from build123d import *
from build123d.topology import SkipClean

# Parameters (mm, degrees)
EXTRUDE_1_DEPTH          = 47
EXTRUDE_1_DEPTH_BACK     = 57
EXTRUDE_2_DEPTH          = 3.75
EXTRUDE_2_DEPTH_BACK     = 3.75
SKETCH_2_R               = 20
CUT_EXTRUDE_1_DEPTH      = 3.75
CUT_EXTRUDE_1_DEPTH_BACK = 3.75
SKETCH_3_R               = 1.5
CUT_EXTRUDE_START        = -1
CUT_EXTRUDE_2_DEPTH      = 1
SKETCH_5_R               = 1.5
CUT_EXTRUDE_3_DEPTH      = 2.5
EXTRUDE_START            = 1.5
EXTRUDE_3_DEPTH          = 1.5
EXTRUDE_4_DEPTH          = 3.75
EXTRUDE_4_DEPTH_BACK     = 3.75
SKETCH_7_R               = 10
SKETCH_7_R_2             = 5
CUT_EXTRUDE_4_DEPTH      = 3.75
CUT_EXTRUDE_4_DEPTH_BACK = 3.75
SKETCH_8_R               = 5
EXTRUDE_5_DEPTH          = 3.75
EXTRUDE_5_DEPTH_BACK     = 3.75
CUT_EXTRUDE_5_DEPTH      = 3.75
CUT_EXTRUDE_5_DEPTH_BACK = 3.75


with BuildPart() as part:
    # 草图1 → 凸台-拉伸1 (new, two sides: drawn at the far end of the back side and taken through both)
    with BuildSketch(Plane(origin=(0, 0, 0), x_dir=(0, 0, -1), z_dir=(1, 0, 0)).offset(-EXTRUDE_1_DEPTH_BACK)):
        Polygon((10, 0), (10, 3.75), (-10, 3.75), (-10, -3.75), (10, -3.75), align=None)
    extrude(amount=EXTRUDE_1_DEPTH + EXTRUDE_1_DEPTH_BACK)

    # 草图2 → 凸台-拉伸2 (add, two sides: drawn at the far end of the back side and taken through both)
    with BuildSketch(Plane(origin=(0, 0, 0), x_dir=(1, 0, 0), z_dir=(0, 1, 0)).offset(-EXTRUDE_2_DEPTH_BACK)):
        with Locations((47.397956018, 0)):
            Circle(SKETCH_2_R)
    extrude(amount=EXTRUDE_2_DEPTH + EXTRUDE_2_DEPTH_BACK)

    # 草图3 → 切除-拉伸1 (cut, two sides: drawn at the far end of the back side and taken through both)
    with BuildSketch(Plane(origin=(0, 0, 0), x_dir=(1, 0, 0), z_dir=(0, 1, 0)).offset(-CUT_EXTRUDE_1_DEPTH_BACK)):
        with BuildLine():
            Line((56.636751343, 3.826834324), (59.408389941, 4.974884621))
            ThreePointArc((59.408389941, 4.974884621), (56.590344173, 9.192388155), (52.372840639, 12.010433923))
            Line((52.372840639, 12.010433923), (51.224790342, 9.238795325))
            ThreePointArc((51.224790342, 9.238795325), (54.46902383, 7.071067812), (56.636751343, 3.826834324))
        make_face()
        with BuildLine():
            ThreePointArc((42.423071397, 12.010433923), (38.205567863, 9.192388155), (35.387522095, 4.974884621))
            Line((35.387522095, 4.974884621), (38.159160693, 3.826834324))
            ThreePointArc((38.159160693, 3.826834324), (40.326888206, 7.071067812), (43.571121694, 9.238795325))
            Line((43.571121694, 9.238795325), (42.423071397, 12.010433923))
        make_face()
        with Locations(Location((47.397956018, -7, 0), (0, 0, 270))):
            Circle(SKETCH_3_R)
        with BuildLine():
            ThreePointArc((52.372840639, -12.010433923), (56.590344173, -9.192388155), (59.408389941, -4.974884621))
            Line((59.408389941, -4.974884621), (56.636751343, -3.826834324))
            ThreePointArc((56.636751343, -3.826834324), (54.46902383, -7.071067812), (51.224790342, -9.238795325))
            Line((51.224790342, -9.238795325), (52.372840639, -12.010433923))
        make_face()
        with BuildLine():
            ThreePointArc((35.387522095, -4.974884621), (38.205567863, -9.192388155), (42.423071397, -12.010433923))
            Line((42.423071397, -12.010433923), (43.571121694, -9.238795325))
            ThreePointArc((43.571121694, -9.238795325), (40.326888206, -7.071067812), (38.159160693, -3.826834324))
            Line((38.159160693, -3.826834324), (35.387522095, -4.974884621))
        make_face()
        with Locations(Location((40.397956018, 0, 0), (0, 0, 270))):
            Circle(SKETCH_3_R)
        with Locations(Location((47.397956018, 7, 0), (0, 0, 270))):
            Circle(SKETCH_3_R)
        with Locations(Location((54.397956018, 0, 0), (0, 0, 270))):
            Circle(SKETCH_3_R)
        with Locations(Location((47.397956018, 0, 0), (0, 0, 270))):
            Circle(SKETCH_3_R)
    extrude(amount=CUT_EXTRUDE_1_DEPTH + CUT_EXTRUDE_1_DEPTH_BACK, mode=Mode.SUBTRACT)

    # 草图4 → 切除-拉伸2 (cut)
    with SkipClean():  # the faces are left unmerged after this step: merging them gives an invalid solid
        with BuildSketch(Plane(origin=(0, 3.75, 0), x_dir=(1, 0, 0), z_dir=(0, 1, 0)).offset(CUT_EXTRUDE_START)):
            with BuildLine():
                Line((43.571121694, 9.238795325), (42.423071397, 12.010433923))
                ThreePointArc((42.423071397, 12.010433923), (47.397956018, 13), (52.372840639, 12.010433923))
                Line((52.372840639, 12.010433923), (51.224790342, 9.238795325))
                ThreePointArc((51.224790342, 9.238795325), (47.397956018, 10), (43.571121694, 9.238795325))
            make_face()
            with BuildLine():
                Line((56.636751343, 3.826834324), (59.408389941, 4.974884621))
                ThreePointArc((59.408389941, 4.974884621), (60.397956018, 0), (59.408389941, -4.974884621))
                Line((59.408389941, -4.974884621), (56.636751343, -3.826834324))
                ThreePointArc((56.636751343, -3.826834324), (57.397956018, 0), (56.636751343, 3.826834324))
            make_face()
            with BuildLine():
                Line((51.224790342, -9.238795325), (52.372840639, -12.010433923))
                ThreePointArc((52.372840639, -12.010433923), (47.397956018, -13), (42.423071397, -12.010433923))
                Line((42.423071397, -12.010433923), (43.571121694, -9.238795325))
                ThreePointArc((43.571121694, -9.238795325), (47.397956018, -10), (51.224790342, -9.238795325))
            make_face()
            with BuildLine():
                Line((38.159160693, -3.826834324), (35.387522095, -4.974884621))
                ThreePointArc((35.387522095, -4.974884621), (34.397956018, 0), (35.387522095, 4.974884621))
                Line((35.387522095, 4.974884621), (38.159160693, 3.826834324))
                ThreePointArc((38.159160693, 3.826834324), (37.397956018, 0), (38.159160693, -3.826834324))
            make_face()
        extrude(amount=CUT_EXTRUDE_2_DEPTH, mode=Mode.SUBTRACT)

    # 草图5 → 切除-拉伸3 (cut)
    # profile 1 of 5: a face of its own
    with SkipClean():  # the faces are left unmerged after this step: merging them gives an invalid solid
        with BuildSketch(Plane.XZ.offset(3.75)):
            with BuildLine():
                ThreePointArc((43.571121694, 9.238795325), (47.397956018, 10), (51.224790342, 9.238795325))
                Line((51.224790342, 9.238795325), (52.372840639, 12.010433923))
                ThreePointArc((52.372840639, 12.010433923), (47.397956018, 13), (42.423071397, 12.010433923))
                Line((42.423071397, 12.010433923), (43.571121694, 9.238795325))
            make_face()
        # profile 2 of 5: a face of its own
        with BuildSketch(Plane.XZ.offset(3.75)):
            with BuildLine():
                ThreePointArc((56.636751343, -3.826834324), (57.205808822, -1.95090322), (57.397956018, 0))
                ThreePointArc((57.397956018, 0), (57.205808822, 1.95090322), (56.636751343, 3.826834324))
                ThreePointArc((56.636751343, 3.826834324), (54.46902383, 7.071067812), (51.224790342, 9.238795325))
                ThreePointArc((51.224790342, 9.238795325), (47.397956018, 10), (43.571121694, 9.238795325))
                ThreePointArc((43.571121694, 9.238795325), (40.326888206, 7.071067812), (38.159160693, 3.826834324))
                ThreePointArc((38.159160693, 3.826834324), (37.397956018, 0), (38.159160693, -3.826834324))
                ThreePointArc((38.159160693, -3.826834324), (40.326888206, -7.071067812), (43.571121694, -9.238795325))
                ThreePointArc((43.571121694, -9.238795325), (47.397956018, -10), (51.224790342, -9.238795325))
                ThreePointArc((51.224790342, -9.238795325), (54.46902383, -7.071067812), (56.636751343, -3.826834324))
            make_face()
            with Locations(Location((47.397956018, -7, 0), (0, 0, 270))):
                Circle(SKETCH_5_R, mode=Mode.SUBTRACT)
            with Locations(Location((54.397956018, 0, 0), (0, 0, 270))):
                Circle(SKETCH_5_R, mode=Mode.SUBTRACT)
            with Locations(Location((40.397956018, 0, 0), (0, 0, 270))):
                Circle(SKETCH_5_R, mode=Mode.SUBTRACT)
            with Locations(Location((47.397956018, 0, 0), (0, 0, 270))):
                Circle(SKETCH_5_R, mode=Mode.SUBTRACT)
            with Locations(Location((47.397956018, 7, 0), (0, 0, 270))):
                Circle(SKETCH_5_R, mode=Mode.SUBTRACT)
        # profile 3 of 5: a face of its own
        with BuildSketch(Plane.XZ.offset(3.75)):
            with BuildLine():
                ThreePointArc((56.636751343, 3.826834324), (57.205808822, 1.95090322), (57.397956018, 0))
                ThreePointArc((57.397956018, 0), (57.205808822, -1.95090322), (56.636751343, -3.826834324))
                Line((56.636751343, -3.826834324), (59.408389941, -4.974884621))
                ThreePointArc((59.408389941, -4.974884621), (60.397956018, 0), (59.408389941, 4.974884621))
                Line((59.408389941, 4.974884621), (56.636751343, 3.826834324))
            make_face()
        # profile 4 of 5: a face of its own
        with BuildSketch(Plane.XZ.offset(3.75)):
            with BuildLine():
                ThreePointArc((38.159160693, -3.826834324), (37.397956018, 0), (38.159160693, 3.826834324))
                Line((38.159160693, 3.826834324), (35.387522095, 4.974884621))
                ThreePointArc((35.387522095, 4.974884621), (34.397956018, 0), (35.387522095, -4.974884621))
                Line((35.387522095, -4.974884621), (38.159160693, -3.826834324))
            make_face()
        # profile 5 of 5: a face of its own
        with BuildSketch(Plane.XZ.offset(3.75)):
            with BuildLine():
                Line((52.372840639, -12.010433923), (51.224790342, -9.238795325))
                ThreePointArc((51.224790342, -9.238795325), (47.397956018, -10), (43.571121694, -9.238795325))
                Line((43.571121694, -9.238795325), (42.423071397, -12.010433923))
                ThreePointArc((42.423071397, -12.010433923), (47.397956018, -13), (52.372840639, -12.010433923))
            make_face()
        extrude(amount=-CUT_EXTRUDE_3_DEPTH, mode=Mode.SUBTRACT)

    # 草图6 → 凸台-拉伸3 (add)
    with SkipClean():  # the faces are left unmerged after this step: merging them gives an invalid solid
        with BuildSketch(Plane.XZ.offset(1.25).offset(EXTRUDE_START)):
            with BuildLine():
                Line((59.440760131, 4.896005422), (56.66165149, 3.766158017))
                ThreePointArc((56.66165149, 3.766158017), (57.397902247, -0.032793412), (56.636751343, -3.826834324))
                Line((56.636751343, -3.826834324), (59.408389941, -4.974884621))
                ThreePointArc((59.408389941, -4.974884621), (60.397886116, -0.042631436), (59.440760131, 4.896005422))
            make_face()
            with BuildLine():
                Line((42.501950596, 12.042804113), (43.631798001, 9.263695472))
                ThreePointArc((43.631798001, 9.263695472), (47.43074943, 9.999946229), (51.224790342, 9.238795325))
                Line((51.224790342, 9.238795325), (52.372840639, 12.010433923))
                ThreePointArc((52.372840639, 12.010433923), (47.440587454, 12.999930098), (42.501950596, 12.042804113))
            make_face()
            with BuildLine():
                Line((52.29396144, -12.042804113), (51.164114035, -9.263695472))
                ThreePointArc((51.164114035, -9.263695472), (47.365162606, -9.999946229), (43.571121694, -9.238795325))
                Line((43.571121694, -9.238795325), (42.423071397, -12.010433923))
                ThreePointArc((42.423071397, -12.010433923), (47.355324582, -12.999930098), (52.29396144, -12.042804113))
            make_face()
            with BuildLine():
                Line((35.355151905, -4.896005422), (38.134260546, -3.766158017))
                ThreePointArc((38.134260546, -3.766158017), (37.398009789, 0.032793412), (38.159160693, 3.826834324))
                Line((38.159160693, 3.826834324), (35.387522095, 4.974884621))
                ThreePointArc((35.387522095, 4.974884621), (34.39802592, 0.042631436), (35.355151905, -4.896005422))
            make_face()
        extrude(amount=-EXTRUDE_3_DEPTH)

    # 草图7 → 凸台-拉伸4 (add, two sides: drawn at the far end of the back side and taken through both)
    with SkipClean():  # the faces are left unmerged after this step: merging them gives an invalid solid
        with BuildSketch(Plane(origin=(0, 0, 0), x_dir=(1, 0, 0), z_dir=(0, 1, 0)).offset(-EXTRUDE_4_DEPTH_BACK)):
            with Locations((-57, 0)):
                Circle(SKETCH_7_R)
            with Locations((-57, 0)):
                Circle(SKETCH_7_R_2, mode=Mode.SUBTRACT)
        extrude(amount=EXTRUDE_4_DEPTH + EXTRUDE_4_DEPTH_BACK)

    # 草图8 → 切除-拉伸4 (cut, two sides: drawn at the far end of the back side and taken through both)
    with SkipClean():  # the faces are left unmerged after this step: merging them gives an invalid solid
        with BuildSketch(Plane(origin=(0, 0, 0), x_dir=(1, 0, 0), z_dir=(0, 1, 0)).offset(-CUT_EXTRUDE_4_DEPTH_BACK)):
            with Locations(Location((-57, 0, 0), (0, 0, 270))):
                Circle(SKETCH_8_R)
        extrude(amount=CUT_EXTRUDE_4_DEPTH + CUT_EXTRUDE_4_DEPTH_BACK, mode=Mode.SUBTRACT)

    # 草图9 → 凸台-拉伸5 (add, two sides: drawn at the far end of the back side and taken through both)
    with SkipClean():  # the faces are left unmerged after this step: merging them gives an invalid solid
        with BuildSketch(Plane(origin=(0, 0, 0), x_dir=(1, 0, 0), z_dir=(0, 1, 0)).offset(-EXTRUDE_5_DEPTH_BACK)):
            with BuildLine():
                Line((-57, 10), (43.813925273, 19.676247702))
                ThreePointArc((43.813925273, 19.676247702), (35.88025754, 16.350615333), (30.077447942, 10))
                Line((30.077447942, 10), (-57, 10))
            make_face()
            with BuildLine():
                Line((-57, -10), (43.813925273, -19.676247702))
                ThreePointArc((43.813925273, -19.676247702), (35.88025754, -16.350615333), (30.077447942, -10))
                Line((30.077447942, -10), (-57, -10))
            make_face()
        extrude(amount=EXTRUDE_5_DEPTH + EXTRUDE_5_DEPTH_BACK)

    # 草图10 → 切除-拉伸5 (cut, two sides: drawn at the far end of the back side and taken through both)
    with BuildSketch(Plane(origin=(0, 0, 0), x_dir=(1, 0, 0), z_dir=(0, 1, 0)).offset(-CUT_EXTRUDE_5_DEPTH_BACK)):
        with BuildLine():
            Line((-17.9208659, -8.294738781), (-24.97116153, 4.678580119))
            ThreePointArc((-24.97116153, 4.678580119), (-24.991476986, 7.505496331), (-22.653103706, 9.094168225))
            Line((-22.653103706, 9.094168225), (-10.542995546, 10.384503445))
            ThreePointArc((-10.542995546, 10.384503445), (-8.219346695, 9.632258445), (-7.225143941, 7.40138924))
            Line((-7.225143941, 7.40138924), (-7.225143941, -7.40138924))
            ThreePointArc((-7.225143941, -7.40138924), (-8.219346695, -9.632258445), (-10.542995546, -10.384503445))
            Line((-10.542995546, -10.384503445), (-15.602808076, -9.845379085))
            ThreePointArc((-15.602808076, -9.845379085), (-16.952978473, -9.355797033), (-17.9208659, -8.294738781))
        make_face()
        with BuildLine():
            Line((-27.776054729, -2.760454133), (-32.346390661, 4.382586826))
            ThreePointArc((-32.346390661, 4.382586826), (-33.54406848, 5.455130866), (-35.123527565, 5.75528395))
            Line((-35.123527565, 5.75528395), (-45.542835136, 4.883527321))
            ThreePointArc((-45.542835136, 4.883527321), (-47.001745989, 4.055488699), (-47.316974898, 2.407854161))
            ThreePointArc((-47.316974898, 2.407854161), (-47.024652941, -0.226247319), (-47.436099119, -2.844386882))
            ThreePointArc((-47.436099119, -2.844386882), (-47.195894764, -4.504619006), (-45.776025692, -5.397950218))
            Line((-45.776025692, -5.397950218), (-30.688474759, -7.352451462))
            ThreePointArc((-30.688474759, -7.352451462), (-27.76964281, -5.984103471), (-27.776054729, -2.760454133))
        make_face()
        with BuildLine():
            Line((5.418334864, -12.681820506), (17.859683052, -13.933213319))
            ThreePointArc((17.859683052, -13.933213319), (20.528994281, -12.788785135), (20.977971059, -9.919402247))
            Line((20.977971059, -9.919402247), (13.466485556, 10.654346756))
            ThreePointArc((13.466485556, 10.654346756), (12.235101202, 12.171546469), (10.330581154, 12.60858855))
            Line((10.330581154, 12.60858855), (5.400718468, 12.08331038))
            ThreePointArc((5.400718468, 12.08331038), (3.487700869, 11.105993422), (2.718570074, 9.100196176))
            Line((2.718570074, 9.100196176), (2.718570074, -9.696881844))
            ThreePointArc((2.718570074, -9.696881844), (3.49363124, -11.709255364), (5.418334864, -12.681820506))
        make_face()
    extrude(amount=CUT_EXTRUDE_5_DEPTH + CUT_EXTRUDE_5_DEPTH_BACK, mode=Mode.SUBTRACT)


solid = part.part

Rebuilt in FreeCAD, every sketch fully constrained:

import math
import FreeCAD as App
import Part
import Sketcher
Q = App.Units.Quantity

doc = App.newDocument("Part")
body = doc.addObject("PartDesign::Body", "Body")

# Sketch on YZ plane
sketch1 = body.newObject("Sketcher::SketchObject", "Sketch")
sketch1.AttachmentSupport = (doc.getObject("YZ_Plane"), [""])
sketch1.MapMode = "FlatFace"
sketch1.addGeometry([
    Part.LineSegment(App.Vector(4, -10, 0), App.Vector(4, 10, 0)),
    Part.LineSegment(App.Vector(4, 10, 0), App.Vector(-4, 10, 0)),
    Part.LineSegment(App.Vector(-4, 10, 0), App.Vector(-4, -10, 0)),
    Part.LineSegment(App.Vector(-4, -10, 0), App.Vector(4, -10, 0)),
], False)
sketch1.addConstraint([
    Sketcher.Constraint("Coincident", 0, 2, 1, 1),
    Sketcher.Constraint("Coincident", 1, 2, 2, 1),
    Sketcher.Constraint("Coincident", 2, 2, 3, 1),
    Sketcher.Constraint("Coincident", 3, 2, 0, 1),
    Sketcher.Constraint("Vertical", 0),
    Sketcher.Constraint("Horizontal", 1),
    Sketcher.Constraint("Vertical", 2),
    Sketcher.Constraint("Horizontal", 3),
    Sketcher.Constraint("Symmetric", 0, 2, 2, 2, -1, 1),
    Sketcher.Constraint("DistanceY", 0, 1, 0, 2, Q("20 mm")),
    Sketcher.Constraint("DistanceX", 1, 2, 1, 1, Q("7.5 mm")),
])
pad1 = body.newObject("PartDesign::Pad", "Pad")
pad1.Profile = sketch1
pad1.Type = "TwoLengths"
pad1.Length = 47
pad1.Length2 = 57

# Sketch on XZ plane
sketch2 = body.newObject("Sketcher::SketchObject", "Sketch001")
sketch2.AttachmentSupport = (doc.getObject("XZ_Plane"), [""])
sketch2.MapMode = "FlatFace"
sketch2.addGeometry(Part.Circle(App.Vector(47, 0, 0), App.Vector(0, 0, 1), 20), False)
sketch2.addConstraint([
    Sketcher.Constraint("PointOnObject", 0, 3, -1),
    Sketcher.Constraint("Diameter", 0, Q("40 mm")),
    Sketcher.Constraint("DistanceX", -1, 1, 0, 3, Q("47.397956 mm")),
])
pad2 = body.newObject("PartDesign::Pad", "Pad001")
pad2.Profile = sketch2
pad2.Type = "TwoLengths"
pad2.Length = 3.75
pad2.Length2 = 3.75
pad2.Reversed = True

# Sketch on XZ plane
sketch3 = body.newObject("Sketcher::SketchObject", "Sketch002")
sketch3.AttachmentSupport = (doc.getObject("XZ_Plane"), [""])
sketch3.MapMode = "FlatFace"
sketch3.addGeometry([
    Part.LineSegment(App.Vector(56.6, -3.8, 0), App.Vector(59.4, -5, 0)),  # 0
    Part.ArcOfCircle(Part.Circle(App.Vector(47.4, 0, 0), App.Vector(0, 0, 1), 13), math.radians(-67), math.radians(-23)),  # 1
    Part.LineSegment(App.Vector(52.4, -12, 0), App.Vector(51.2, -9.2, 0)),  # 2
    Part.ArcOfCircle(Part.Circle(App.Vector(47.4, 0, 0), App.Vector(0, 0, 1), 10), math.radians(-68), math.radians(-22)),  # 3
    Part.ArcOfCircle(Part.Circle(App.Vector(47.4, 0, 0), App.Vector(0, 0, 1), 13), math.radians(-157), math.radians(-113)),  # 4
    Part.LineSegment(App.Vector(35.4, -5, 0), App.Vector(38.2, -3.8, 0)),  # 5
    Part.ArcOfCircle(Part.Circle(App.Vector(47.4, 0, 0), App.Vector(0, 0, 1), 10), math.radians(-158), math.radians(-112)),  # 6
    Part.LineSegment(App.Vector(43.6, -9.2, 0), App.Vector(42.4, -12, 0)),  # 7
    Part.Circle(App.Vector(47.4, 7, 0), App.Vector(0, 0, 1), 1.5),  # 8
    Part.ArcOfCircle(Part.Circle(App.Vector(47.4, 0, 0), App.Vector(0, 0, 1), 13), math.radians(23), math.radians(67)),  # 9
    Part.LineSegment(App.Vector(59.4, 5, 0), App.Vector(56.6, 3.8, 0)),  # 10
    Part.ArcOfCircle(Part.Circle(App.Vector(47.4, 0, 0), App.Vector(0, 0, 1), 10), math.radians(22), math.radians(68)),  # 11
    Part.LineSegment(App.Vector(51.2, 9.2, 0), App.Vector(52.4, 12, 0)),  # 12
    Part.ArcOfCircle(Part.Circle(App.Vector(47.4, 0, 0), App.Vector(0, 0, 1), 13), math.radians(113), math.radians(157)),  # 13
    Part.LineSegment(App.Vector(42.4, 12, 0), App.Vector(43.6, 9.2, 0)),  # 14
    Part.ArcOfCircle(Part.Circle(App.Vector(47.4, 0, 0), App.Vector(0, 0, 1), 10), math.radians(112), math.radians(158)),  # 15
    Part.LineSegment(App.Vector(38.2, 3.8, 0), App.Vector(35.4, 5, 0)),  # 16
    Part.Circle(App.Vector(40.4, 0, 0), App.Vector(0, 0, 1), 1.5),  # 17
    Part.Circle(App.Vector(47.4, -7, 0), App.Vector(0, 0, 1), 1.5),  # 18
    Part.Circle(App.Vector(54.4, 0, 0), App.Vector(0, 0, 1), 1.5),  # 19
    Part.Circle(App.Vector(47.4, 0, 0), App.Vector(0, 0, 1), 1.5),  # 20
], False)
sketch3.addConstraint([
    Sketcher.Constraint("Coincident", 0, 2, 1, 2),
    Sketcher.Constraint("Coincident", 1, 1, 2, 1),
    Sketcher.Constraint("Coincident", 2, 2, 3, 1),
    Sketcher.Constraint("Coincident", 3, 2, 0, 1),
    Sketcher.Constraint("Coincident", 4, 1, 5, 1),
    Sketcher.Constraint("Coincident", 5, 2, 6, 1),
    Sketcher.Constraint("Coincident", 6, 2, 7, 1),
    Sketcher.Constraint("Coincident", 7, 2, 4, 2),
    Sketcher.Constraint("Coincident", 9, 1, 10, 1),
    Sketcher.Constraint("Coincident", 10, 2, 11, 1),
    Sketcher.Constraint("Coincident", 11, 2, 12, 1),
    Sketcher.Constraint("Coincident", 12, 2, 9, 2),
    Sketcher.Constraint("Coincident", 13, 1, 14, 1),
    Sketcher.Constraint("Coincident", 14, 2, 15, 1),
    Sketcher.Constraint("Coincident", 15, 2, 16, 1),
    Sketcher.Constraint("Coincident", 16, 2, 13, 2),
    Sketcher.Constraint("Coincident", 3, 3, 1, 3),
    Sketcher.Constraint("Coincident", 4, 3, 1, 3),
    Sketcher.Constraint("Coincident", 6, 3, 1, 3),
    Sketcher.Constraint("Coincident", 9, 3, 1, 3),
    Sketcher.Constraint("Coincident", 11, 3, 1, 3),
    Sketcher.Constraint("Coincident", 13, 3, 1, 3),
    Sketcher.Constraint("Coincident", 15, 3, 1, 3),
    Sketcher.Constraint("Coincident", 20, 3, 1, 3),
    Sketcher.Constraint("Equal", 1, 4),
    Sketcher.Constraint("Equal", 3, 6),
    Sketcher.Constraint("Equal", 4, 9),
    Sketcher.Constraint("Equal", 6, 11),
    Sketcher.Constraint("Equal", 9, 13),
    Sketcher.Constraint("Equal", 11, 15),
    Sketcher.Constraint("Equal", 8, 17),
    Sketcher.Constraint("Equal", 17, 18),
    Sketcher.Constraint("Equal", 18, 19),
    Sketcher.Constraint("Equal", 19, 20),
    Sketcher.Constraint("Symmetric", 8, 3, 18, 3, -1),
    Sketcher.Constraint("Symmetric", 0, 2, 9, 1, -1),
    Sketcher.Constraint("PointOnObject", 17, 3, -1),
    Sketcher.Constraint("PointOnObject", 19, 3, -1),
    Sketcher.Constraint("Perpendicular", 2, 5),
    Sketcher.Constraint("Perpendicular", 0, 7),
    Sketcher.Constraint("Parallel", 5, 10),
    Sketcher.Constraint("Parallel", 7, 12),
    Sketcher.Constraint("Perpendicular", 10, 14),
    Sketcher.Constraint("Perpendicular", 12, 16),
    Sketcher.Constraint("Horizontal", 0, 2, 4, 1),
    Sketcher.Constraint("Horizontal", 3, 2, 5, 2),
    Sketcher.Constraint("Horizontal", 2, 2, 6, 2),
    Sketcher.Constraint("Horizontal", 12, 2, 13, 1),
    Sketcher.Constraint("Horizontal", 10, 2, 15, 2),
    Sketcher.Constraint("Vertical", 6, 3, 8, 3),
    Sketcher.Constraint("Vertical", 2, 2, 11, 2),
    Sketcher.Constraint("Diameter", 8, Q("3 mm")),
    Sketcher.Constraint("Radius", 1, Q("13 mm")),
    Sketcher.Constraint("Radius", 3, Q("10 mm")),
    Sketcher.Constraint("DistanceY", -1, 1, 8, 3, Q("7 mm")),
    Sketcher.Constraint("Angle", 0, Q("-22.5 deg")),
    Sketcher.Constraint("DistanceX", 17, 3, 1, 3, Q("7 mm")),
    Sketcher.Constraint("DistanceX", 4, 3, 19, 3, Q("7 mm")),
    Sketcher.Constraint("DistanceX", 2, 2, 0, 2, Q("8.1836 mm")),
    Sketcher.Constraint("DistanceY", 1, 1, 3, 2, Q("8.1836 mm")),
    Sketcher.Constraint("DistanceX", -1, 1, 0, 2, Q("59.40839 mm")),
])
pocket1 = body.newObject("PartDesign::Pocket", "Pocket")
pocket1.Profile = sketch3
pocket1.Type = "ThroughAll"
pocket1.Midplane = True

# Sketch on XZ plane
sketch4 = body.newObject("Sketcher::SketchObject", "Sketch003")
sketch4.AttachmentSupport = (doc.getObject("XZ_Plane"), [""])
sketch4.MapMode = "FlatFace"
sketch4.AttachmentOffset = App.Placement(App.Vector(0, 0, -2.75), App.Rotation())
sketch4.addGeometry([
    Part.LineSegment(App.Vector(42.4, -12, 0), App.Vector(43.6, -9.2, 0)),  # 0
    Part.ArcOfCircle(Part.Circle(App.Vector(47.4, 0, 0), App.Vector(0, 0, 1), 10), math.radians(-113), math.radians(-67)),  # 1
    Part.LineSegment(App.Vector(51.2, -9.2, 0), App.Vector(52.4, -12, 0)),  # 2
    Part.ArcOfCircle(Part.Circle(App.Vector(47.4, 0, 0), App.Vector(0, 0, 1), 13), math.radians(-112), math.radians(-68)),  # 3
    Part.LineSegment(App.Vector(59.4, -5, 0), App.Vector(56.6, -3.8, 0)),  # 4
    Part.ArcOfCircle(Part.Circle(App.Vector(47.4, 0, 0), App.Vector(0, 0, 1), 10), math.radians(-23), math.radians(23)),  # 5
    Part.LineSegment(App.Vector(56.6, 3.8, 0), App.Vector(59.4, 5, 0)),  # 6
    Part.ArcOfCircle(Part.Circle(App.Vector(47.4, 0, 0), App.Vector(0, 0, 1), 13), math.radians(-22), math.radians(22)),  # 7
    Part.LineSegment(App.Vector(52.4, 12, 0), App.Vector(51.2, 9.2, 0)),  # 8
    Part.ArcOfCircle(Part.Circle(App.Vector(47.4, 0, 0), App.Vector(0, 0, 1), 10), math.radians(67), math.radians(113)),  # 9
    Part.LineSegment(App.Vector(43.6, 9.2, 0), App.Vector(42.4, 12, 0)),  # 10
    Part.ArcOfCircle(Part.Circle(App.Vector(47.4, 0, 0), App.Vector(0, 0, 1), 13), math.radians(68), math.radians(112)),  # 11
    Part.LineSegment(App.Vector(35.4, 5, 0), App.Vector(38.2, 3.8, 0)),  # 12
    Part.ArcOfCircle(Part.Circle(App.Vector(47.4, 0, 0), App.Vector(0, 0, 1), 10), math.radians(157), math.radians(203)),  # 13
    Part.LineSegment(App.Vector(38.2, -3.8, 0), App.Vector(35.4, -5, 0)),  # 14
    Part.ArcOfCircle(Part.Circle(App.Vector(47.4, 0, 0), App.Vector(0, 0, 1), 13), math.radians(158), math.radians(202)),  # 15
], False)
sketch4.addConstraint([
    Sketcher.Constraint("Coincident", 0, 2, 1, 1),
    Sketcher.Constraint("Coincident", 1, 2, 2, 1),
    Sketcher.Constraint("Coincident", 2, 2, 3, 2),
    Sketcher.Constraint("Coincident", 3, 1, 0, 1),
    Sketcher.Constraint("Coincident", 4, 2, 5, 1),
    Sketcher.Constraint("Coincident", 5, 2, 6, 1),
    Sketcher.Constraint("Coincident", 6, 2, 7, 2),
    Sketcher.Constraint("Coincident", 7, 1, 4, 1),
    Sketcher.Constraint("Coincident", 8, 2, 9, 1),
    Sketcher.Constraint("Coincident", 9, 2, 10, 1),
    Sketcher.Constraint("Coincident", 10, 2, 11, 2),
    Sketcher.Constraint("Coincident", 11, 1, 8, 1),
    Sketcher.Constraint("Coincident", 12, 2, 13, 1),
    Sketcher.Constraint("Coincident", 13, 2, 14, 1),
    Sketcher.Constraint("Coincident", 14, 2, 15, 2),
    Sketcher.Constraint("Coincident", 15, 1, 12, 1),
    Sketcher.Constraint("Coincident", 3, 3, 1, 3),
    Sketcher.Constraint("Coincident", 5, 3, 1, 3),
    Sketcher.Constraint("Coincident", 7, 3, 1, 3),
    Sketcher.Constraint("Coincident", 9, 3, 1, 3),
    Sketcher.Constraint("Coincident", 11, 3, 1, 3),
    Sketcher.Constraint("Coincident", 13, 3, 1, 3),
    Sketcher.Constraint("Coincident", 15, 3, 1, 3),
    Sketcher.Constraint("Equal", 1, 5),
    Sketcher.Constraint("Equal", 3, 7),
    Sketcher.Constraint("Equal", 5, 9),
    Sketcher.Constraint("Equal", 7, 11),
    Sketcher.Constraint("Equal", 9, 13),
    Sketcher.Constraint("Equal", 11, 15),
    Sketcher.Constraint("Symmetric", 4, 2, 5, 2, -1),
    Sketcher.Constraint("Perpendicular", 0, 4),
    Sketcher.Constraint("Perpendicular", 2, 6),
    Sketcher.Constraint("Perpendicular", 4, 8),
    Sketcher.Constraint("Perpendicular", 6, 10),
    Sketcher.Constraint("Perpendicular", 8, 12),
    Sketcher.Constraint("Perpendicular", 10, 14),
    Sketcher.Constraint("Horizontal", 0, 2, 1, 2),
    Sketcher.Constraint("Horizontal", 2, 2, 3, 1),
    Sketcher.Constraint("Horizontal", 8, 2, 9, 2),
    Sketcher.Constraint("Horizontal", 5, 2, 12, 2),
    Sketcher.Constraint("Horizontal", 4, 2, 13, 2),
    Sketcher.Constraint("Vertical", 1, 2, 8, 2),
    Sketcher.Constraint("Radius", 1, Q("10 mm")),
    Sketcher.Constraint("Radius", 3, Q("13 mm")),
    Sketcher.Constraint("Angle", 0, Q("67.5 deg")),
    Sketcher.Constraint("DistanceY", 2, 2, 4, 2, Q("8.1836 mm")),
    Sketcher.Constraint("DistanceX", 1, 2, 7, 1, Q("8.1836 mm")),
    Sketcher.Constraint("DistanceX", -1, 1, 0, 2, Q("43.571122 mm")),
])
pocket2 = body.newObject("PartDesign::Pocket", "Pocket001")
pocket2.Profile = sketch4
pocket2.Length = 1

# Sketch on XZ plane
sketch5 = body.newObject("Sketcher::SketchObject", "Sketch004")
sketch5.AttachmentSupport = (doc.getObject("XZ_Plane"), [""])
sketch5.MapMode = "FlatFace"
sketch5.AttachmentOffset = App.Placement(App.Vector(0, 0, 3.75), App.Rotation())
sketch5.addGeometry([
    Part.LineSegment(App.Vector(51.2, 9.2, 0), App.Vector(52.4, 12, 0)),  # 0
    Part.ArcOfCircle(Part.Circle(App.Vector(47.4, 0, 0), App.Vector(0, 0, 1), 13), math.radians(68), math.radians(112)),  # 1
    Part.LineSegment(App.Vector(42.4, 12, 0), App.Vector(43.6, 9.2, 0)),  # 2
    Part.ArcOfCircle(Part.Circle(App.Vector(47.4, 0, 0), App.Vector(0, 0, 1), 10), math.radians(112), math.radians(158)),  # 3
    Part.LineSegment(App.Vector(38.2, 3.8, 0), App.Vector(35.4, 5, 0)),  # 4
    Part.ArcOfCircle(Part.Circle(App.Vector(47.4, 0, 0), App.Vector(0, 0, 1), 13), math.radians(158), math.radians(202)),  # 5
    Part.LineSegment(App.Vector(35.4, -5, 0), App.Vector(38.2, -3.8, 0)),  # 6
    Part.ArcOfCircle(Part.Circle(App.Vector(47.4, 0, 0), App.Vector(0, 0, 1), 10), math.radians(-158), math.radians(-112)),  # 7
    Part.LineSegment(App.Vector(43.6, -9.2, 0), App.Vector(42.4, -12, 0)),  # 8
    Part.ArcOfCircle(Part.Circle(App.Vector(47.4, 0, 0), App.Vector(0, 0, 1), 13), math.radians(-112), math.radians(-68)),  # 9
    Part.LineSegment(App.Vector(52.4, -12, 0), App.Vector(51.2, -9.2, 0)),  # 10
    Part.ArcOfCircle(Part.Circle(App.Vector(47.4, 0, 0), App.Vector(0, 0, 1), 10), math.radians(-68), math.radians(-22)),  # 11
    Part.LineSegment(App.Vector(56.6, -3.8, 0), App.Vector(59.4, -5, 0)),  # 12
    Part.ArcOfCircle(Part.Circle(App.Vector(47.4, 0, 0), App.Vector(0, 0, 1), 13), math.radians(-22), math.radians(22)),  # 13
    Part.LineSegment(App.Vector(59.4, 5, 0), App.Vector(56.6, 3.8, 0)),  # 14
    Part.ArcOfCircle(Part.Circle(App.Vector(47.4, 0, 0), App.Vector(0, 0, 1), 10), math.radians(22), math.radians(68)),  # 15
    Part.Circle(App.Vector(47.4, 7, 0), App.Vector(0, 0, 1), 1.5),  # 16
    Part.Circle(App.Vector(47.4, -7, 0), App.Vector(0, 0, 1), 1.5),  # 17
    Part.Circle(App.Vector(40.4, 0, 0), App.Vector(0, 0, 1), 1.5),  # 18
    Part.Circle(App.Vector(47.4, 0, 0), App.Vector(0, 0, 1), 1.5),  # 19
    Part.Circle(App.Vector(54.4, 0, 0), App.Vector(0, 0, 1), 1.5),  # 20
], False)
sketch5.addConstraint([
    Sketcher.Constraint("Coincident", 0, 2, 1, 1),
    Sketcher.Constraint("Coincident", 1, 2, 2, 1),
    Sketcher.Constraint("Coincident", 2, 2, 3, 1),
    Sketcher.Constraint("Coincident", 3, 2, 4, 1),
    Sketcher.Constraint("Coincident", 4, 2, 5, 1),
    Sketcher.Constraint("Coincident", 5, 2, 6, 1),
    Sketcher.Constraint("Coincident", 6, 2, 7, 1),
    Sketcher.Constraint("Coincident", 7, 2, 8, 1),
    Sketcher.Constraint("Coincident", 8, 2, 9, 1),
    Sketcher.Constraint("Coincident", 9, 2, 10, 1),
    Sketcher.Constraint("Coincident", 10, 2, 11, 1),
    Sketcher.Constraint("Coincident", 11, 2, 12, 1),
    Sketcher.Constraint("Coincident", 12, 2, 13, 1),
    Sketcher.Constraint("Coincident", 13, 2, 14, 1),
    Sketcher.Constraint("Coincident", 14, 2, 15, 1),
    Sketcher.Constraint("Coincident", 15, 2, 0, 1),
    Sketcher.Constraint("Coincident", 3, 3, 1, 3),
    Sketcher.Constraint("Coincident", 5, 3, 1, 3),
    Sketcher.Constraint("Coincident", 7, 3, 1, 3),
    Sketcher.Constraint("Coincident", 9, 3, 1, 3),
    Sketcher.Constraint("Coincident", 11, 3, 1, 3),
    Sketcher.Constraint("Coincident", 13, 3, 1, 3),
    Sketcher.Constraint("Coincident", 15, 3, 1, 3),
    Sketcher.Constraint("Coincident", 19, 3, 1, 3),
    Sketcher.Constraint("Equal", 1, 5),
    Sketcher.Constraint("Equal", 3, 7),
    Sketcher.Constraint("Equal", 5, 9),
    Sketcher.Constraint("Equal", 7, 11),
    Sketcher.Constraint("Equal", 9, 13),
    Sketcher.Constraint("Equal", 11, 15),
    Sketcher.Constraint("Equal", 16, 17),
    Sketcher.Constraint("Equal", 17, 18),
    Sketcher.Constraint("Equal", 18, 19),
    Sketcher.Constraint("Equal", 19, 20),
    Sketcher.Constraint("Symmetric", 16, 3, 17, 3, -1),
    Sketcher.Constraint("Symmetric", 4, 2, 5, 2, -1),
    Sketcher.Constraint("PointOnObject", 18, 3, -1),
    Sketcher.Constraint("PointOnObject", 20, 3, -1),
    Sketcher.Constraint("Perpendicular", 0, 4),
    Sketcher.Constraint("Perpendicular", 2, 6),
    Sketcher.Constraint("Perpendicular", 4, 8),
    Sketcher.Constraint("Perpendicular", 6, 10),
    Sketcher.Constraint("Perpendicular", 8, 12),
    Sketcher.Constraint("Perpendicular", 10, 14),
    Sketcher.Constraint("Horizontal", 0, 2, 1, 2),
    Sketcher.Constraint("Horizontal", 8, 2, 9, 2),
    Sketcher.Constraint("Horizontal", 7, 2, 10, 2),
    Sketcher.Constraint("Horizontal", 6, 2, 11, 2),
    Sketcher.Constraint("Horizontal", 4, 2, 13, 2),
    Sketcher.Constraint("Vertical", 15, 3, 16, 3),
    Sketcher.Constraint("Vertical", 2, 2, 7, 2),
    Sketcher.Constraint("Diameter", 16, Q("3 mm")),
    Sketcher.Constraint("Radius", 1, Q("13 mm")),
    Sketcher.Constraint("Radius", 3, Q("10 mm")),
    Sketcher.Constraint("DistanceY", -1, 1, 16, 3, Q("7 mm")),
    Sketcher.Constraint("Angle", 0, Q("67.5 deg")),
    Sketcher.Constraint("DistanceX", 18, 3, 13, 3, Q("7 mm")),
    Sketcher.Constraint("DistanceX", 5, 3, 20, 3, Q("7 mm")),
    Sketcher.Constraint("DistanceY", 3, 2, 1, 2, Q("8.1836 mm")),
    Sketcher.Constraint("DistanceX", 4, 2, 2, 2, Q("8.1836 mm")),
    Sketcher.Constraint("DistanceX", -1, 1, 0, 2, Q("52.372841 mm")),
])
pocket3 = body.newObject("PartDesign::Pocket", "Pocket002")
pocket3.Profile = sketch5
pocket3.Length = 2.5

# Sketch on XZ plane
sketch6 = body.newObject("Sketcher::SketchObject", "Sketch005")
sketch6.AttachmentSupport = (doc.getObject("XZ_Plane"), [""])
sketch6.MapMode = "FlatFace"
sketch6.AttachmentOffset = App.Placement(App.Vector(0, 0, 2.75), App.Rotation())
sketch6.addGeometry([
    Part.LineSegment(App.Vector(59.4, 4.9, 0), App.Vector(56.7, 3.8, 0)),  # 0
    Part.ArcOfCircle(Part.Circle(App.Vector(47.4, 0, 0), App.Vector(0, 0, 1), 10), math.radians(-22), math.radians(22)),  # 1
    Part.LineSegment(App.Vector(56.6, -3.8, 0), App.Vector(59.4, -5, 0)),  # 2
    Part.ArcOfCircle(Part.Circle(App.Vector(47.4, 0, 0), App.Vector(0, 0, 1), 13), math.radians(-22), math.radians(22)),  # 3
    Part.LineSegment(App.Vector(42.5, 12, 0), App.Vector(43.6, 9.3, 0)),  # 4
    Part.ArcOfCircle(Part.Circle(App.Vector(47.4, 0, 0), App.Vector(0, 0, 1), 10), math.radians(68), math.radians(112)),  # 5
    Part.LineSegment(App.Vector(51.2, 9.2, 0), App.Vector(52.4, 12, 0)),  # 6
    Part.ArcOfCircle(Part.Circle(App.Vector(47.4, 0, 0), App.Vector(0, 0, 1), 13), math.radians(68), math.radians(112)),  # 7
    Part.LineSegment(App.Vector(52.3, -12, 0), App.Vector(51.2, -9.3, 0)),  # 8
    Part.ArcOfCircle(Part.Circle(App.Vector(47.4, 0, 0), App.Vector(0, 0, 1), 10), math.radians(-112), math.radians(-68)),  # 9
    Part.LineSegment(App.Vector(43.6, -9.2, 0), App.Vector(42.4, -12, 0)),  # 10
    Part.ArcOfCircle(Part.Circle(App.Vector(47.4, 0, 0), App.Vector(0, 0, 1), 13), math.radians(-112), math.radians(-68)),  # 11
    Part.LineSegment(App.Vector(35.4, -4.9, 0), App.Vector(38.1, -3.8, 0)),  # 12
    Part.ArcOfCircle(Part.Circle(App.Vector(47.4, 0, 0), App.Vector(0, 0, 1), 10), math.radians(158), math.radians(202)),  # 13
    Part.LineSegment(App.Vector(38.2, 3.8, 0), App.Vector(35.4, 5, 0)),  # 14
    Part.ArcOfCircle(Part.Circle(App.Vector(47.4, 0, 0), App.Vector(0, 0, 1), 13), math.radians(158), math.radians(202)),  # 15
], False)
sketch6.addConstraint([
    Sketcher.Constraint("Coincident", 0, 2, 1, 2),
    Sketcher.Constraint("Coincident", 1, 1, 2, 1),
    Sketcher.Constraint("Coincident", 2, 2, 3, 1),
    Sketcher.Constraint("Coincident", 3, 2, 0, 1),
    Sketcher.Constraint("Coincident", 4, 2, 5, 2),
    Sketcher.Constraint("Coincident", 5, 1, 6, 1),
    Sketcher.Constraint("Coincident", 6, 2, 7, 1),
    Sketcher.Constraint("Coincident", 7, 2, 4, 1),
    Sketcher.Constraint("Coincident", 8, 2, 9, 2),
    Sketcher.Constraint("Coincident", 9, 1, 10, 1),
    Sketcher.Constraint("Coincident", 10, 2, 11, 1),
    Sketcher.Constraint("Coincident", 11, 2, 8, 1),
    Sketcher.Constraint("Coincident", 12, 2, 13, 2),
    Sketcher.Constraint("Coincident", 13, 1, 14, 1),
    Sketcher.Constraint("Coincident", 14, 2, 15, 1),
    Sketcher.Constraint("Coincident", 15, 2, 12, 1),
    Sketcher.Constraint("Coincident", 3, 3, 1, 3),
    Sketcher.Constraint("Coincident", 5, 3, 1, 3),
    Sketcher.Constraint("Coincident", 7, 3, 1, 3),
    Sketcher.Constraint("Coincident", 9, 3, 1, 3),
    Sketcher.Constraint("Coincident", 11, 3, 1, 3),
    Sketcher.Constraint("Coincident", 13, 3, 1, 3),
    Sketcher.Constraint("Coincident", 15, 3, 1, 3),
    Sketcher.Constraint("Equal", 1, 5),
    Sketcher.Constraint("Equal", 3, 7),
    Sketcher.Constraint("Equal", 5, 9),
    Sketcher.Constraint("Equal", 7, 11),
    Sketcher.Constraint("Equal", 9, 13),
    Sketcher.Constraint("Equal", 11, 15),
    Sketcher.Constraint("PointOnObject", 1, 3, -1),
    Sketcher.Constraint("Perpendicular", 0, 4),
    Sketcher.Constraint("Perpendicular", 2, 6),
    Sketcher.Constraint("Parallel", 4, 8),
    Sketcher.Constraint("Parallel", 6, 10),
    Sketcher.Constraint("Perpendicular", 8, 12),
    Sketcher.Constraint("Perpendicular", 10, 14),
    Sketcher.Constraint("Radius", 1, Q("10 mm")),
    Sketcher.Constraint("Radius", 3, Q("13 mm")),
    Sketcher.Constraint("Angle", 2, Q("-22.5 deg")),
    Sketcher.Constraint("DistanceX", -1, 1, 4, 2, Q("43.631798 mm")),
    Sketcher.Constraint("DistanceX", 1, 1, 0, 2, Q("0.0249 mm")),
    Sketcher.Constraint("DistanceY", 5, 1, 4, 2, Q("0.0249 mm")),
    Sketcher.Constraint("DistanceY", 8, 2, 9, 1, Q("0.0249 mm")),
    Sketcher.Constraint("DistanceX", 12, 2, 13, 1, Q("0.0249 mm")),
    Sketcher.Constraint("DistanceX", -1, 1, 0, 2, Q("56.661651 mm")),
    Sketcher.Constraint("DistanceY", -1, 1, 0, 2, Q("3.766158 mm")),
    Sketcher.Constraint("DistanceX", -1, 1, 3, 2, Q("59.44076 mm")),
    Sketcher.Constraint("DistanceX", -1, 1, 9, 1, Q("43.571122 mm")),
    Sketcher.Constraint("DistanceX", -1, 1, 12, 2, Q("38.134261 mm")),
])
pad3 = body.newObject("PartDesign::Pad", "Pad002")
pad3.Profile = sketch6
pad3.Length = 1.5
pad3.Reversed = True

# Sketch on XZ plane
sketch7 = body.newObject("Sketcher::SketchObject", "Sketch006")
sketch7.AttachmentSupport = (doc.getObject("XZ_Plane"), [""])
sketch7.MapMode = "FlatFace"
sketch7.addGeometry([
    Part.Circle(App.Vector(-57, 0, 0), App.Vector(0, 0, 1), 10),
    Part.Circle(App.Vector(-57, 0, 0), App.Vector(0, 0, 1), 5),
], False)
sketch7.addConstraint([
    Sketcher.Constraint("Coincident", 1, 3, 0, 3),
    Sketcher.Constraint("PointOnObject", 0, 3, -1),
    Sketcher.Constraint("Diameter", 0, Q("20 mm")),
    Sketcher.Constraint("Diameter", 1, Q("10 mm")),
    Sketcher.Constraint("DistanceX", 0, 3, -1, 1, Q("57 mm")),
])
pad4 = body.newObject("PartDesign::Pad", "Pad003")
pad4.Profile = sketch7
pad4.Type = "TwoLengths"
pad4.Length = 3.75
pad4.Length2 = 3.75
pad4.Reversed = True

# Sketch on XZ plane
sketch8 = body.newObject("Sketcher::SketchObject", "Sketch007")
sketch8.AttachmentSupport = (doc.getObject("XZ_Plane"), [""])
sketch8.MapMode = "FlatFace"
sketch8.addGeometry(Part.Circle(App.Vector(-57, 0, 0), App.Vector(0, 0, 1), 5), False)
sketch8.addConstraint([
    Sketcher.Constraint("PointOnObject", 0, 3, -1),
    Sketcher.Constraint("Diameter", 0, Q("10 mm")),
    Sketcher.Constraint("DistanceX", 0, 3, -1, 1, Q("57 mm")),
])
pocket4 = body.newObject("PartDesign::Pocket", "Pocket003")
pocket4.Profile = sketch8
pocket4.Type = "ThroughAll"
pocket4.Midplane = True

# Sketch on XZ plane
sketch9 = body.newObject("Sketcher::SketchObject", "Sketch008")
sketch9.AttachmentSupport = (doc.getObject("XZ_Plane"), [""])
sketch9.MapMode = "FlatFace"
sketch9.addGeometry([
    Part.LineSegment(App.Vector(44, -20, 0), App.Vector(-57, -10, 0)),  # 0
    Part.LineSegment(App.Vector(-57, -10, 0), App.Vector(30, -10, 0)),  # 1
    Part.ArcOfCircle(Part.Circle(App.Vector(47, 0, 0), App.Vector(0, 0, 1), 20), math.radians(-150), math.radians(-100)),  # 2
    Part.LineSegment(App.Vector(-57, 10, 0), App.Vector(44, 20, 0)),  # 3
    Part.ArcOfCircle(Part.Circle(App.Vector(47, 0, 0), App.Vector(0, 0, 1), 20), math.radians(100), math.radians(150)),  # 4
    Part.LineSegment(App.Vector(30, 10, 0), App.Vector(-57, 10, 0)),  # 5
], False)
sketch9.addConstraint([
    Sketcher.Constraint("Coincident", 0, 2, 1, 1),
    Sketcher.Constraint("Coincident", 1, 2, 2, 1),
    Sketcher.Constraint("Coincident", 2, 2, 0, 1),
    Sketcher.Constraint("Coincident", 3, 2, 4, 1),
    Sketcher.Constraint("Coincident", 4, 2, 5, 1),
    Sketcher.Constraint("Coincident", 5, 2, 3, 1),
    Sketcher.Constraint("Horizontal", 1),
    Sketcher.Constraint("Horizontal", 5),
    Sketcher.Constraint("Coincident", 4, 3, 2, 3),
    Sketcher.Constraint("Equal", 2, 4),
    Sketcher.Constraint("Symmetric", 2, 2, 3, 2, -1),
    Sketcher.Constraint("Symmetric", 0, 2, 5, 2, -1),
    Sketcher.Constraint("Radius", 2, Q("20 mm")),
    Sketcher.Constraint("DistanceX", 0, 2, -1, 1, Q("57 mm")),
    Sketcher.Constraint("DistanceY", 0, 2, -1, 1, Q("10 mm")),
    Sketcher.Constraint("Distance", 0, Q("101.27723 mm")),
    Sketcher.Constraint("DistanceX", 1, 1, 1, 2, Q("87.077448 mm")),
])
pad5 = body.newObject("PartDesign::Pad", "Pad004")
pad5.Profile = sketch9
pad5.Type = "TwoLengths"
pad5.Length = 3.75
pad5.Length2 = 3.75
pad5.Reversed = True

# Sketch on XZ plane
sketch10 = body.newObject("Sketcher::SketchObject", "Sketch009")
sketch10.AttachmentSupport = (doc.getObject("XZ_Plane"), [""])
sketch10.MapMode = "FlatFace"
sketch10.addGeometry([
    Part.LineSegment(App.Vector(-25, -4.7, 0), App.Vector(-17.9, 8.3, 0)),  # 0
    Part.ArcOfCircle(Part.Circle(App.Vector(-15.3, 6.9, 0), App.Vector(0, 0, 1), 3), math.radians(96), math.radians(151)),  # 1
    Part.LineSegment(App.Vector(-15.6, 9.8, 0), App.Vector(-10.5, 10.4, 0)),  # 2
    Part.ArcOfCircle(Part.Circle(App.Vector(-10.2, 7.4, 0), App.Vector(0, 0, 1), 3), math.radians(0), math.radians(96)),  # 3
    Part.LineSegment(App.Vector(-7.2, 7.4, 0), App.Vector(-7.2, -7.4, 0)),  # 4
    Part.ArcOfCircle(Part.Circle(App.Vector(-10.2, -7.4, 0), App.Vector(0, 0, 1), 3), math.radians(-96), math.radians(0)),  # 5
    Part.LineSegment(App.Vector(-10.5, -10.4, 0), App.Vector(-22.7, -9.1, 0)),  # 6
    Part.ArcOfCircle(Part.Circle(App.Vector(-22.3, -6.1, 0), App.Vector(0, 0, 1), 3), math.radians(151), math.radians(264)),  # 7
    Part.LineSegment(App.Vector(-27.8, 2.8, 0), App.Vector(-32.3, -4.4, 0)),  # 8
    Part.ArcOfCircle(Part.Circle(App.Vector(-34.9, -2.8, 0), App.Vector(0, 0, 1), 3), math.radians(-95), math.radians(-33)),  # 9
    Part.LineSegment(App.Vector(-35.1, -5.8, 0), App.Vector(-45.5, -4.9, 0)),  # 10
    Part.ArcOfCircle(Part.Circle(App.Vector(-45.4, -2.9, 0), App.Vector(0, 0, 1), 2), math.radians(166), math.radians(265)),  # 11
    Part.ArcOfCircle(Part.Circle(App.Vector(-57, 0, 0), App.Vector(0, 0, 1), 10), math.radians(-14), math.radians(17)),  # 12
    Part.ArcOfCircle(Part.Circle(App.Vector(-45.5, 3.4, 0), App.Vector(0, 0, 1), 2), math.radians(97), math.radians(197)),  # 13
    Part.LineSegment(App.Vector(-45.8, 5.4, 0), App.Vector(-30.7, 7.4, 0)),  # 14
    Part.ArcOfCircle(Part.Circle(App.Vector(-30.3, 4.4, 0), App.Vector(0, 0, 1), 3), math.radians(-33), math.radians(97)),  # 15
    Part.LineSegment(App.Vector(5.4, 12.7, 0), App.Vector(17.9, 13.9, 0)),  # 16
    Part.ArcOfCircle(Part.Circle(App.Vector(18.2, 10.9, 0), App.Vector(0, 0, 1), 3), math.radians(-20), math.radians(96)),  # 17
    Part.LineSegment(App.Vector(21, 9.9, 0), App.Vector(13.5, -10.7, 0)),  # 18
    Part.ArcOfCircle(Part.Circle(App.Vector(10.6, -9.6, 0), App.Vector(0, 0, 1), 3), math.radians(-96), math.radians(-20)),  # 19
    Part.LineSegment(App.Vector(10.3, -12.6, 0), App.Vector(5.4, -12.1, 0)),  # 20
    Part.ArcOfCircle(Part.Circle(App.Vector(5.7, -9.1, 0), App.Vector(0, 0, 1), 3), math.radians(180), math.radians(264)),  # 21
    Part.LineSegment(App.Vector(2.7, -9.1, 0), App.Vector(2.7, 9.7, 0)),  # 22
    Part.ArcOfCircle(Part.Circle(App.Vector(5.7, 9.7, 0), App.Vector(0, 0, 1), 3), math.radians(96), math.radians(180)),  # 23
], False)
sketch10.addConstraint([
    Sketcher.Constraint("Tangent", 0, 2, 1, 2),
    Sketcher.Constraint("Tangent", 1, 1, 2, 1),
    Sketcher.Constraint("Tangent", 2, 2, 3, 2),
    Sketcher.Constraint("Tangent", 3, 1, 4, 1),
    Sketcher.Constraint("Tangent", 4, 2, 5, 2),
    Sketcher.Constraint("Tangent", 5, 1, 6, 1),
    Sketcher.Constraint("Tangent", 6, 2, 7, 2),
    Sketcher.Constraint("Tangent", 7, 1, 0, 1),
    Sketcher.Constraint("Tangent", 8, 2, 9, 2),
    Sketcher.Constraint("Tangent", 9, 1, 10, 1),
    Sketcher.Constraint("Tangent", 10, 2, 11, 2),
    Sketcher.Constraint("Tangent", 11, 1, 12, 1),
    Sketcher.Constraint("Tangent", 12, 2, 13, 2),
    Sketcher.Constraint("Tangent", 13, 1, 14, 1),
    Sketcher.Constraint("Tangent", 14, 2, 15, 2),
    Sketcher.Constraint("Tangent", 15, 1, 8, 1),
    Sketcher.Constraint("Tangent", 16, 2, 17, 2),
    Sketcher.Constraint("Tangent", 17, 1, 18, 1),
    Sketcher.Constraint("Tangent", 18, 2, 19, 2),
    Sketcher.Constraint("Tangent", 19, 1, 20, 1),
    Sketcher.Constraint("Tangent", 20, 2, 21, 2),
    Sketcher.Constraint("Tangent", 21, 1, 22, 1),
    Sketcher.Constraint("Tangent", 22, 2, 23, 2),
    Sketcher.Constraint("Tangent", 23, 1, 16, 1),
    Sketcher.Constraint("Vertical", 4),
    Sketcher.Constraint("Vertical", 22),
    Sketcher.Constraint("Equal", 1, 3),
    Sketcher.Constraint("Equal", 3, 5),
    Sketcher.Constraint("Equal", 5, 7),
    Sketcher.Constraint("Equal", 7, 9),
    Sketcher.Constraint("Equal", 11, 13),
    Sketcher.Constraint("Equal", 9, 15),
    Sketcher.Constraint("Equal", 15, 17),
    Sketcher.Constraint("Equal", 17, 19),
    Sketcher.Constraint("Equal", 19, 21),
    Sketcher.Constraint("Equal", 21, 23),
    Sketcher.Constraint("Symmetric", 2, 2, 5, 1, -1),
    Sketcher.Constraint("PointOnObject", 12, 3, -1),
    Sketcher.Constraint("Parallel", 6, 20),
    Sketcher.Constraint("Radius", 1, Q("3 mm")),
    Sketcher.Constraint("Radius", 11, Q("2 mm")),
    Sketcher.Constraint("DistanceX", 12, 3, -1, 1, Q("57 mm")),
    Sketcher.Constraint("Radius", 12, Q("9.977912 mm")),
    Sketcher.Constraint("DistanceX", 13, 3, 11, 3, Q("0.143002 mm")),
    Sketcher.Constraint("DistanceY", 4, 2, 4, 1, Q("14.802778 mm")),
    Sketcher.Constraint("DistanceY", 22, 1, 22, 2, Q("18.797078 mm")),
    Sketcher.Constraint("DistanceX", 9, 3, -1, 1, Q("34.873399 mm")),
    Sketcher.Constraint("DistanceX", 12, 2, -1, 1, Q("47.436099 mm")),
    Sketcher.Constraint("DistanceX", 15, 3, 7, 1, Q("5.331902 mm")),
    Sketcher.Constraint("DistanceY", 8, 2, 15, 3, Q("8.759898 mm")),
    Sketcher.Constraint("DistanceX", 23, 3, 17, 1, Q("15.259401 mm")),
    Sketcher.Constraint("DistanceY", 21, 3, 17, 1, Q("19.019598 mm")),
    Sketcher.Constraint("DistanceY", 19, 1, 4, 2, Q("5.207199 mm")),
    Sketcher.Constraint("Distance", 14, Q("15.213621 mm")),
    Sketcher.Constraint("Distance", 18, Q("21.90209 mm")),
    Sketcher.Constraint("DistanceY", 9, 3, -1, 1, Q("2.765729 mm")),
    Sketcher.Constraint("DistanceX", -1, 1, 17, 3, Q("18.159918 mm")),
    Sketcher.Constraint("DistanceX", -1, 1, 21, 3, Q("5.71857 mm")),
    Sketcher.Constraint("DistanceY", -1, 1, 0, 2, Q("8.294739 mm")),
    Sketcher.Constraint("DistanceX", 1, 1, -1, 1, Q("15.602808 mm")),
])
pocket5 = body.newObject("PartDesign::Pocket", "Pocket004")
pocket5.Profile = sketch10
pocket5.Type = "ThroughAll"
pocket5.Midplane = True

doc.recompute()
